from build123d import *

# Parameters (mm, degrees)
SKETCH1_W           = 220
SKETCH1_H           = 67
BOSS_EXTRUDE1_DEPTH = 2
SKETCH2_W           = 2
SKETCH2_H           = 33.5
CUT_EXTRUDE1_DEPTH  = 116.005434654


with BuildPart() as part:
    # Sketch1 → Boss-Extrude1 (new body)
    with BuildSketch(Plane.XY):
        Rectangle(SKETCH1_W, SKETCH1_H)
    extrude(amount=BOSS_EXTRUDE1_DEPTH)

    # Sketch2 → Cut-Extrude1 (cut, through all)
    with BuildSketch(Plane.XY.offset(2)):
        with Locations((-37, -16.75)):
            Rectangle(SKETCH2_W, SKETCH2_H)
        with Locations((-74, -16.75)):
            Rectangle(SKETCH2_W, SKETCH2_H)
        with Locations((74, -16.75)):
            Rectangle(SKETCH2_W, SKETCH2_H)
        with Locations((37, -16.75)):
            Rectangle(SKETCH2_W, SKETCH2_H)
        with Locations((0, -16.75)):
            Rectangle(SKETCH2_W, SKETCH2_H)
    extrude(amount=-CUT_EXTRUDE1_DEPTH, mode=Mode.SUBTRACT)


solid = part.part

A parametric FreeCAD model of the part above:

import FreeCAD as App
import Part
import Sketcher
from FreeCAD import Vector


def add_polygon(sketch, points):
    """Adds a closed chain of lines whose ends are joined by coincident constraints."""
    first, n = sketch.GeometryCount, len(points)
    for a, b in zip(points, points[1:] + points[:1]):
        sketch.addGeometry(Part.LineSegment(App.Vector(*a, 0), App.Vector(*b, 0)), False)
    for i in range(n):
        sketch.addConstraint(Sketcher.Constraint("Coincident", first + i, 2, first + (i + 1) % n, 1))

doc = App.newDocument("Part")
body = doc.addObject("PartDesign::Body", "Body")

# Sketch on XY plane
sketch1 = doc.addObject("Sketcher::SketchObject", "Sketch")
body.addObject(sketch1)
sketch1.AttachmentSupport = (doc.XY_Plane, [""])
sketch1.MapMode = "FlatFace"
add_polygon(sketch1, [(-110, 33.5), (-110, -33.5), (110, -33.5), (110, 33.5)])  # lines 0-3
sketch1.addConstraint([
    Sketcher.Constraint("Vertical", 0),
    Sketcher.Constraint("Horizontal", 1),
    Sketcher.Constraint("Vertical", 2),
    Sketcher.Constraint("Horizontal", 3),
    Sketcher.Constraint("Symmetric", 0, 2, 2, 2, -1, 1),
    Sketcher.Constraint("DistanceX", 1, 1, 1, 2, 220.0),
    Sketcher.Constraint("DistanceY", 0, 2, 0, 1, 67.0),
])
pad1 = doc.addObject("PartDesign::Pad", "Pad")
body.addObject(pad1)
pad1.Profile = sketch1
pad1.Length = 2

# Sketch on XY plane
sketch2 = doc.addObject("Sketcher::SketchObject", "Sketch001")
body.addObject(sketch2)
sketch2.AttachmentSupport = (doc.XY_Plane, [""])
sketch2.MapMode = "FlatFace"
sketch2.AttachmentOffset = App.Placement(Vector(0, 0, 2), App.Rotation())
add_polygon(sketch2, [(-38, 0), (-38, -33.5), (-36, -33.5), (-36, 0)])  # lines 0-3
add_polygon(sketch2, [(-75, 0), (-75, -33.5), (-73, -33.5), (-73, 0)])  # lines 4-7
add_polygon(sketch2, [(73, 0), (73, -33.5), (75, -33.5), (75, 0)])  # lines 8-11
add_polygon(sketch2, [(36, 0), (36, -33.5), (38, -33.5), (38, 0)])  # lines 12-15
add_polygon(sketch2, [(-1, 0), (-1, -33.5), (1, -33.5), (1, 0)])  # lines 16-19
sketch2.addConstraint([
    Sketcher.Constraint("Vertical", 0),
    Sketcher.Constraint("Horizontal", 1),
    Sketcher.Constraint("Vertical", 2),
    Sketcher.Constraint("Horizontal", 3),
    Sketcher.Constraint("Vertical", 4),
    Sketcher.Constraint("Horizontal", 5),
    Sketcher.Constraint("Vertical", 6),
    Sketcher.Constraint("Horizontal", 7),
    Sketcher.Constraint("Vertical", 8),
    Sketcher.Constraint("Horizontal", 9),
    Sketcher.Constraint("Vertical", 10),
    Sketcher.Constraint("Horizontal", 11),
    Sketcher.Constraint("Vertical", 12),
    Sketcher.Constraint("Horizontal", 13),
    Sketcher.Constraint("Vertical", 14),
    Sketcher.Constraint("Horizontal", 15),
    Sketcher.Constraint("Vertical", 16),
    Sketcher.Constraint("Horizontal", 17),
    Sketcher.Constraint("Vertical", 18),
    Sketcher.Constraint("Horizontal", 19),
    Sketcher.Constraint("Symmetric", 7, 2, 10, 2, -1, 1),
    Sketcher.Constraint("Symmetric", 3, 2, 14, 2, -1, 1),
    Sketcher.Constraint("Symmetric", 18, 2, 19, 2, -1, 1),
    Sketcher.Constraint("Symmetric", 5, 2, 8, 2, -2),
    Sketcher.Constraint("Symmetric", 1, 2, 12, 2, -2),
    Sketcher.Constraint("PointOnObject", 2, 2, -1),
    Sketcher.Constraint("PointOnObject", 6, 2, -1),
    Sketcher.Constraint("Horizontal", 1, 2, 4, 2),
    Sketcher.Constraint("Horizontal", 13, 2, 16, 2),
    Sketcher.Constraint("Equal", 3, 5),
    Sketcher.Constraint("Equal", 15, 17),
    Sketcher.Constraint("DistanceX", 1, 1, 1, 2, 2.0),
    Sketcher.Constraint("DistanceY", 0, 2, 0, 1, 33.5),
    Sketcher.Constraint("DistanceX", 0, 2, -1, 1, 38.0),
    Sketcher.Constraint("DistanceX", 4, 2, -1, 1, 75.0),
])
pocket1 = doc.addObject("PartDesign::Pocket", "Pocket")
body.addObject(pocket1)
pocket1.Profile = sketch2
pocket1.Type = "ThroughAll"

doc.recompute()
